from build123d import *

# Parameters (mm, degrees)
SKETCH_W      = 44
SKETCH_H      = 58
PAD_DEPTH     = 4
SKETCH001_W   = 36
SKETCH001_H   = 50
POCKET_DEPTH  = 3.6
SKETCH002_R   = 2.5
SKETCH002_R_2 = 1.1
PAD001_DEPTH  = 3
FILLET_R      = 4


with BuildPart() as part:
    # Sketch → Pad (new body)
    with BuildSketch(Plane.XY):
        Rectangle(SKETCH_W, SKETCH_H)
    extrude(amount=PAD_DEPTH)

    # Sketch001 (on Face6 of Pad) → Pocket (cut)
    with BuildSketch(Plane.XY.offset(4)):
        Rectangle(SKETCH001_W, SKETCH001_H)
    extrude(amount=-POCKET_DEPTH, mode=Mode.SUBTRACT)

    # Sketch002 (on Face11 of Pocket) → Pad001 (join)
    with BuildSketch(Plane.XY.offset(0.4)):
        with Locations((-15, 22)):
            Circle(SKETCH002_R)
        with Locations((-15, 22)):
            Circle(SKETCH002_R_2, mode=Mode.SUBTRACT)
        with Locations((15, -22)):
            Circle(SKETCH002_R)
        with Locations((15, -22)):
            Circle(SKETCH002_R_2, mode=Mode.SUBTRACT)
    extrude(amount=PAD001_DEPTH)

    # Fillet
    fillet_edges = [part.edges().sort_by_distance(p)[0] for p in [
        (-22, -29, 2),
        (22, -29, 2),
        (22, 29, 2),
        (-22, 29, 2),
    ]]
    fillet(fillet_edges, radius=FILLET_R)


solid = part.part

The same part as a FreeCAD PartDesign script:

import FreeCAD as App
import Part
import Sketcher


def edges_at(feature, points):
    """Names of the edges that pass closest to the given points."""
    edges = feature.Shape.Edges
    near = lambda p: min(range(len(edges)), key=lambda i: edges[i].distToShape(Part.Vertex(*p))[0])
    return sorted({f"Edge{near(p) + 1}" for p in points})

doc = App.newDocument("Part")
body = doc.addObject("PartDesign::Body", "Body")

# Sketch on XY plane
sketch1 = doc.addObject("Sketcher::SketchObject", "Sketch")
body.addObject(sketch1)
sketch1.AttachmentSupport = (doc.XY_Plane, [""])
sketch1.MapMode = "FlatFace"
sketch1.addGeometry([
    Part.LineSegment(App.Vector(-22, 29, 0), App.Vector(-22, -29, 0)),
    Part.LineSegment(App.Vector(-22, -29, 0), App.Vector(22, -29, 0)),
    Part.LineSegment(App.Vector(22, -29, 0), App.Vector(22, 29, 0)),
    Part.LineSegment(App.Vector(22, 29, 0), App.Vector(-22, 29, 0)),
], False)
sketch1.addConstraint([
    Sketcher.Constraint("Coincident", 0, 2, 1, 1),
    Sketcher.Constraint("Coincident", 1, 2, 2, 1),
    Sketcher.Constraint("Coincident", 2, 2, 3, 1),
    Sketcher.Constraint("Coincident", 3, 2, 0, 1),
    Sketcher.Constraint("Vertical", 0),
    Sketcher.Constraint("Horizontal", 1),
    Sketcher.Constraint("Vertical", 2),
    Sketcher.Constraint("Horizontal", 3),
    Sketcher.Constraint("Symmetric", 0, 2, 2, 2, -1, 1),
    Sketcher.Constraint("DistanceX", 1, 1, 1, 2, 44.0),
    Sketcher.Constraint("DistanceY", 0, 2, 0, 1, 58.0),
])
pad1 = doc.addObject("PartDesign::Pad", "Pad")
body.addObject(pad1)
pad1.Profile = sketch1
pad1.Length = 4

# Sketch on XY plane
sketch2 = doc.addObject("Sketcher::SketchObject", "Sketch001")
body.addObject(sketch2)
sketch2.AttachmentSupport = (doc.XY_Plane, [""])
sketch2.MapMode = "FlatFace"
sketch2.AttachmentOffset = App.Placement(App.Vector(0, 0, 4), App.Rotation())
sketch2.addGeometry([
    Part.LineSegment(App.Vector(-18, 25, 0), App.Vector(-18, -25, 0)),
    Part.LineSegment(App.Vector(-18, -25, 0), App.Vector(18, -25, 0)),
    Part.LineSegment(App.Vector(18, -25, 0), App.Vector(18, 25, 0)),
    Part.LineSegment(App.Vector(18, 25, 0), App.Vector(-18, 25, 0)),
], False)
sketch2.addConstraint([
    Sketcher.Constraint("Coincident", 0, 2, 1, 1),
    Sketcher.Constraint("Coincident", 1, 2, 2, 1),
    Sketcher.Constraint("Coincident", 2, 2, 3, 1),
    Sketcher.Constraint("Coincident", 3, 2, 0, 1),
    Sketcher.Constraint("Vertical", 0),
    Sketcher.Constraint("Horizontal", 1),
    Sketcher.Constraint("Vertical", 2),
    Sketcher.Constraint("Horizontal", 3),
    Sketcher.Constraint("Symmetric", 0, 2, 2, 2, -1, 1),
    Sketcher.Constraint("DistanceX", 1, 1, 1, 2, 36.0),
    Sketcher.Constraint("DistanceY", 0, 2, 0, 1, 50.0),
])
pocket1 = doc.addObject("PartDesign::Pocket", "Pocket")
body.addObject(pocket1)
pocket1.Profile = sketch2
pocket1.Length = 3.6

# Sketch on XY plane
sketch3 = doc.addObject("Sketcher::SketchObject", "Sketch002")
body.addObject(sketch3)
sketch3.AttachmentSupport = (doc.XY_Plane, [""])
sketch3.MapMode = "FlatFace"
sketch3.AttachmentOffset = App.Placement(App.Vector(0, 0, 0.4), App.Rotation())
sketch3.addGeometry([
    Part.Circle(App.Vector(-15, 22, 0), App.Vector(0, 0, 1), 2.5),
    Part.Circle(App.Vector(-15, 22, 0), App.Vector(0, 0, 1), 1.1),
    Part.Circle(App.Vector(15, -22, 0), App.Vector(0, 0, 1), 2.5),
    Part.Circle(App.Vector(15, -22, 0), App.Vector(0, 0, 1), 1.1),
], False)
sketch3.addConstraint([
    Sketcher.Constraint("Coincident", 1, 3, 0, 3),
    Sketcher.Constraint("Coincident", 3, 3, 2, 3),
    Sketcher.Constraint("Equal", 0, 2),
    Sketcher.Constraint("Equal", 1, 3),
    Sketcher.Constraint("Symmetric", 0, 3, 2, 3, -1, 1),
    Sketcher.Constraint("Diameter", 0, 5.0),
    Sketcher.Constraint("Diameter", 1, 2.2),
    Sketcher.Constraint("DistanceX", 0, 3, -1, 1, 15.0),
    Sketcher.Constraint("DistanceY", -1, 1, 0, 3, 22.0),
])
pad2 = doc.addObject("PartDesign::Pad", "Pad001")
body.addObject(pad2)
pad2.Profile = sketch3
pad2.Length = 3
doc.recompute()

fillet = doc.addObject("PartDesign::Fillet", "Fillet")
body.addObject(fillet)
fillet.Base = (pad2, edges_at(pad2, [
    (-22, -29, 2),
    (22, -29, 2),
    (22, 29, 2),
    (-22, 29, 2),
]))
fillet.Radius = 4

doc.recompute()
